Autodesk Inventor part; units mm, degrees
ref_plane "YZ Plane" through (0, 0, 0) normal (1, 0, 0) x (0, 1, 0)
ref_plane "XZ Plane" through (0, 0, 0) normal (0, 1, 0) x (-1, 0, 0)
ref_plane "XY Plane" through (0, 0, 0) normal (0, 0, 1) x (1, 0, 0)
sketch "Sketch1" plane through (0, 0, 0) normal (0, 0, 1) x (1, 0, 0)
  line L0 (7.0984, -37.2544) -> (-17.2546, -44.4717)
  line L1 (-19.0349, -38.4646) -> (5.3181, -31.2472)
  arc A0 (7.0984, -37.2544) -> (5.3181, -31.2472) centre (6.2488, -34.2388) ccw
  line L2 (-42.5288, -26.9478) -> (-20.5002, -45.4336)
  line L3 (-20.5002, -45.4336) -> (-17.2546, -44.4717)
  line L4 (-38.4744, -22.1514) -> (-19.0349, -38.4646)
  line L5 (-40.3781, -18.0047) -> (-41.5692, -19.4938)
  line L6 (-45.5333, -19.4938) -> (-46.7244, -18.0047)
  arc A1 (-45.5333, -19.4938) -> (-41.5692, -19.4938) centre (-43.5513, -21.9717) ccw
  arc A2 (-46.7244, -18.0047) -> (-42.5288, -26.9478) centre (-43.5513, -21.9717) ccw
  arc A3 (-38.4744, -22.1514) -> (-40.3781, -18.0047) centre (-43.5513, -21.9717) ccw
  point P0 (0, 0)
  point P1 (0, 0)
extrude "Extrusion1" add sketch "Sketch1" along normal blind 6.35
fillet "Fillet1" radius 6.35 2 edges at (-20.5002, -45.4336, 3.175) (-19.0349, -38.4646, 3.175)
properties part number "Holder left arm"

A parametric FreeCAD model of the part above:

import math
import FreeCAD as App
import Part
import Sketcher
from FreeCAD import Vector
Q = App.Units.Quantity


def edges_at(feature, points):
    """Names of the edges that pass closest to the given points."""
    edges = feature.Shape.Edges
    near = lambda p: min(range(len(edges)), key=lambda i: edges[i].distToShape(Part.Vertex(*p))[0])
    return sorted({f"Edge{near(p) + 1}" for p in points})

doc = App.newDocument("Part")
body = doc.addObject("PartDesign::Body", "Body")

# Sketch on XY plane
sketch1 = body.newObject("Sketcher::SketchObject", "Sketch")
sketch1.AttachmentSupport = (doc.getObject("XY_Plane"), [""])
sketch1.MapMode = "FlatFace"
sketch1.addGeometry(Part.LineSegment(Vector(-17.2546, -44.4717, 0), Vector(7.0984, -37.2544, 0)), False)
sketch1.addGeometry(Part.ArcOfCircle(Part.Circle(Vector(6.2488, -34.2388, 0), Vector(0, 0, 1), 3.132996), math.radians(-74.265615), math.radians(107.281149)), False)
sketch1.addGeometry(Part.LineSegment(Vector(5.3181, -31.2472, 0), Vector(-19.0349, -38.4646, 0)), False)
sketch1.addGeometry(Part.LineSegment(Vector(-19.0349, -38.4646, 0), Vector(-38.4744, -22.1514, 0)), False)
sketch1.addGeometry(Part.ArcOfCircle(Part.Circle(Vector(-43.5513, -21.9717, 0), Vector(0, 0, 1), 5.079926), math.radians(-2.027173), math.radians(51.343715)), False)
sketch1.addGeometry(Part.LineSegment(Vector(-40.3781, -18.0047, 0), Vector(-41.5692, -19.4938, 0)), False)
sketch1.addGeometry(Part.ArcOfCircle(Part.Circle(Vector(-43.5513, -21.9717, 0), Vector(0, 0, 1), 3.17306), math.radians(128.655296), math.radians(411.343294)), False)
sketch1.addGeometry(Part.LineSegment(Vector(-45.5333, -19.4938, 0), Vector(-46.7244, -18.0047, 0)), False)
sketch1.addGeometry(Part.ArcOfCircle(Part.Circle(Vector(-43.5513, -21.9717, 0), Vector(0, 0, 1), 5.080079), math.radians(128.655405), math.radians(281.611638)), False)
sketch1.addGeometry(Part.LineSegment(Vector(-42.5288, -26.9478, 0), Vector(-20.5002, -45.4336, 0)), False)
sketch1.addGeometry(Part.LineSegment(Vector(-20.5002, -45.4336, 0), Vector(-17.2546, -44.4717, 0)), False)
sketch1.addConstraint(Sketcher.Constraint("Coincident", 0, 2, 1, 1))
sketch1.addConstraint(Sketcher.Constraint("Coincident", 1, 2, 2, 1))
sketch1.addConstraint(Sketcher.Constraint("Coincident", 2, 2, 3, 1))
sketch1.addConstraint(Sketcher.Constraint("Coincident", 3, 2, 4, 1))
sketch1.addConstraint(Sketcher.Constraint("Coincident", 4, 2, 5, 1))
sketch1.addConstraint(Sketcher.Constraint("Coincident", 5, 2, 6, 2))
sketch1.addConstraint(Sketcher.Constraint("Coincident", 6, 1, 7, 1))
sketch1.addConstraint(Sketcher.Constraint("Coincident", 7, 2, 8, 1))
sketch1.addConstraint(Sketcher.Constraint("Coincident", 8, 2, 9, 1))
sketch1.addConstraint(Sketcher.Constraint("Coincident", 9, 2, 10, 1))
sketch1.addConstraint(Sketcher.Constraint("Coincident", 10, 2, 0, 1))
sketch1.addConstraint(Sketcher.Constraint("Coincident", 6, 3, 4, 3))
sketch1.addConstraint(Sketcher.Constraint("Coincident", 8, 3, 4, 3))
sketch1.addConstraint(Sketcher.Constraint("Equal", 4, 8))
sketch1.addConstraint(Sketcher.Constraint("Parallel", 0, 2))
sketch1.addConstraint(Sketcher.Constraint("Parallel", 3, 9))
sketch1.addConstraint(Sketcher.Constraint("Parallel", 2, 10))
sketch1.addConstraint(Sketcher.Constraint("Horizontal", 5, 2, 6, 1))
sketch1.addConstraint(Sketcher.Constraint("Horizontal", 4, 2, 7, 2))
sketch1.addConstraint(Sketcher.Constraint("Equal", 0, 2))
sketch1.addConstraint(Sketcher.Constraint("Radius", 4, Q("0.2 in")))
sketch1.addConstraint(Sketcher.Constraint("Distance", 0, Q("1 in")))
sketch1.addConstraint(Sketcher.Constraint("Radius", 1, Q("3.133 mm")))
sketch1.addConstraint(Sketcher.Constraint("Radius", 6, Q("3.173 mm")))
sketch1.addConstraint(Sketcher.Constraint("DistanceX", 4, 3, 1, 2, Q("1.924 in")))
sketch1.addConstraint(Sketcher.Constraint("Distance", 3, Q("0.9991 in")))
sketch1.addConstraint(Sketcher.Constraint("DistanceY", 0, 2, -1, 1, Q("1.4667 in")))
sketch1.addConstraint(Sketcher.Constraint("DistanceY", 1, 2, -1, 1, Q("1.2302 in")))
sketch1.addConstraint(Sketcher.Constraint("DistanceX", 2, 2, -1, 1, Q("0.7494 in")))
sketch1.addConstraint(Sketcher.Constraint("DistanceY", 3, 2, -1, 1, Q("0.8721 in")))
sketch1.addConstraint(Sketcher.Constraint("DistanceX", 4, 2, -1, 1, Q("1.5897 in")))
sketch1.addConstraint(Sketcher.Constraint("DistanceX", 9, 2, -1, 1, Q("0.8071 in")))
sketch1.addConstraint(Sketcher.Constraint("DistanceX", 1, 2, 0, 2, Q("0.0701 in")))
sketch1.addConstraint(Sketcher.Constraint("DistanceY", 2, 2, 4, 2, Q("0.8055 in")))
sketch1.addConstraint(Sketcher.Constraint("DistanceX", 5, 2, 4, 2, Q("0.0469 in")))
pad1 = body.newObject("PartDesign::Pad", "Pad")
pad1.Profile = sketch1
pad1.Length = Q("0.25 in")
doc.recompute()

fillet = body.newObject("PartDesign::Fillet", "Fillet")
fillet.Base = (pad1, edges_at(pad1, [(-20.5, -45.434, 3.175), (-19.035, -38.465, 3.175)]))
fillet.Radius = Q("0.25 in")

doc.recompute()
